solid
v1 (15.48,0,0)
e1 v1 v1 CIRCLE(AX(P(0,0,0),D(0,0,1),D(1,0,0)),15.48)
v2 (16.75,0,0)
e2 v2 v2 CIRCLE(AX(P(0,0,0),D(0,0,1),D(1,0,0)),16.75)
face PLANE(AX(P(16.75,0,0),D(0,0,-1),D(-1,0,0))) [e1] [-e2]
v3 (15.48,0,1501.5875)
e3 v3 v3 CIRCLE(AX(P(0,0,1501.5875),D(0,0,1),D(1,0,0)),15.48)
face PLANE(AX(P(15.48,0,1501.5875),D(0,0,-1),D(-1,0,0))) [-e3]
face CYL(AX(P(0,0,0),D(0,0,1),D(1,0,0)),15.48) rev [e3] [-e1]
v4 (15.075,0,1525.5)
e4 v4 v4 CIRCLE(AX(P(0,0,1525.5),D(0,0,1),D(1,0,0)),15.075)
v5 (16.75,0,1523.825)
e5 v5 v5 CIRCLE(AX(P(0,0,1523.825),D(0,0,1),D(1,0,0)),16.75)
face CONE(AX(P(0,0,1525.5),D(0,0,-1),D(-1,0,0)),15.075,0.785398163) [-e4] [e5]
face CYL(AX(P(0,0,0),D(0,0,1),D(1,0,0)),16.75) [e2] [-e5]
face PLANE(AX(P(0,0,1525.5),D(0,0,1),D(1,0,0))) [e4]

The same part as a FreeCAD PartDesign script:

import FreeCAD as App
import Part
import Sketcher

V = App.Vector
Q = App.Units.Quantity


def add_polygon(sketch, points):
    """Adds a closed chain of lines whose ends are joined by coincident constraints."""
    first, n = sketch.GeometryCount, len(points)
    for a, b in zip(points, points[1:] + points[:1]):
        sketch.addGeometry(Part.LineSegment(App.Vector(*a, 0), App.Vector(*b, 0)), False)
    for i in range(n):
        sketch.addConstraint(Sketcher.Constraint("Coincident", first + i, 2, first + (i + 1) % n, 1))

doc = App.newDocument("Part")
params = doc.addObject("Spreadsheet::Sheet", "Params")
for row, (alias, value) in enumerate([
    ("sketch1_width", "0.05 in"),
    ("revolution_angle", "360 deg"),
], start=1):
    params.set(f"A{row}", alias)
    params.set(f"B{row}", "=" + value)
    params.setAlias(f"B{row}", alias)

body = doc.addObject("PartDesign::Body", "Body")

sketch1 = doc.addObject("Sketcher::SketchObject", "Sketch")
body.addObject(sketch1)
sketch1.AttachmentSupport = (doc.XZ_Plane, [""])
sketch1.MapMode = "FlatFace"
add_polygon(sketch1, [(15.48, 1501.5875), (0, 1501.5875), (0, 1525.5), (15.075, 1525.5), (16.75, 1523.825), (16.75, 0), (15.48, 0)])
sketch1.addConstraint([
    Sketcher.Constraint("Horizontal", 0),
    Sketcher.Constraint("Vertical", 1),
    Sketcher.Constraint("Horizontal", 2),
    Sketcher.Constraint("Vertical", 4),
    Sketcher.Constraint("Horizontal", 5),
    Sketcher.Constraint("Vertical", 6),
    Sketcher.Constraint("PointOnObject", 0, 2, -2),
    Sketcher.Constraint("PointOnObject", 4, 2, -1),
    Sketcher.Constraint("Angle", 3, Q("-45 deg")),
    Sketcher.Constraint("DistanceX", 5, 2, 5, 1, Q("0.05 in")),
    Sketcher.Constraint("DistanceX", 0, 2, 0, 1, 15.48),
    Sketcher.Constraint("DistanceX", 2, 1, 2, 2, 15.075),
    Sketcher.Constraint("DistanceY", 1, 1, 1, 2, 23.9125),
    Sketcher.Constraint("DistanceY", 4, 2, 4, 1, 1523.825),
])
sketch1.setExpression("Constraints[16]", "Params.sketch1_width")
revolution = doc.addObject("PartDesign::Revolution", "Revolution")
body.addObject(revolution)
revolution.Profile = sketch1
revolution.ReferenceAxis = (sketch1, ["V_Axis"])
revolution.setExpression("Angle", "Params.revolution_angle")

doc.recompute()
